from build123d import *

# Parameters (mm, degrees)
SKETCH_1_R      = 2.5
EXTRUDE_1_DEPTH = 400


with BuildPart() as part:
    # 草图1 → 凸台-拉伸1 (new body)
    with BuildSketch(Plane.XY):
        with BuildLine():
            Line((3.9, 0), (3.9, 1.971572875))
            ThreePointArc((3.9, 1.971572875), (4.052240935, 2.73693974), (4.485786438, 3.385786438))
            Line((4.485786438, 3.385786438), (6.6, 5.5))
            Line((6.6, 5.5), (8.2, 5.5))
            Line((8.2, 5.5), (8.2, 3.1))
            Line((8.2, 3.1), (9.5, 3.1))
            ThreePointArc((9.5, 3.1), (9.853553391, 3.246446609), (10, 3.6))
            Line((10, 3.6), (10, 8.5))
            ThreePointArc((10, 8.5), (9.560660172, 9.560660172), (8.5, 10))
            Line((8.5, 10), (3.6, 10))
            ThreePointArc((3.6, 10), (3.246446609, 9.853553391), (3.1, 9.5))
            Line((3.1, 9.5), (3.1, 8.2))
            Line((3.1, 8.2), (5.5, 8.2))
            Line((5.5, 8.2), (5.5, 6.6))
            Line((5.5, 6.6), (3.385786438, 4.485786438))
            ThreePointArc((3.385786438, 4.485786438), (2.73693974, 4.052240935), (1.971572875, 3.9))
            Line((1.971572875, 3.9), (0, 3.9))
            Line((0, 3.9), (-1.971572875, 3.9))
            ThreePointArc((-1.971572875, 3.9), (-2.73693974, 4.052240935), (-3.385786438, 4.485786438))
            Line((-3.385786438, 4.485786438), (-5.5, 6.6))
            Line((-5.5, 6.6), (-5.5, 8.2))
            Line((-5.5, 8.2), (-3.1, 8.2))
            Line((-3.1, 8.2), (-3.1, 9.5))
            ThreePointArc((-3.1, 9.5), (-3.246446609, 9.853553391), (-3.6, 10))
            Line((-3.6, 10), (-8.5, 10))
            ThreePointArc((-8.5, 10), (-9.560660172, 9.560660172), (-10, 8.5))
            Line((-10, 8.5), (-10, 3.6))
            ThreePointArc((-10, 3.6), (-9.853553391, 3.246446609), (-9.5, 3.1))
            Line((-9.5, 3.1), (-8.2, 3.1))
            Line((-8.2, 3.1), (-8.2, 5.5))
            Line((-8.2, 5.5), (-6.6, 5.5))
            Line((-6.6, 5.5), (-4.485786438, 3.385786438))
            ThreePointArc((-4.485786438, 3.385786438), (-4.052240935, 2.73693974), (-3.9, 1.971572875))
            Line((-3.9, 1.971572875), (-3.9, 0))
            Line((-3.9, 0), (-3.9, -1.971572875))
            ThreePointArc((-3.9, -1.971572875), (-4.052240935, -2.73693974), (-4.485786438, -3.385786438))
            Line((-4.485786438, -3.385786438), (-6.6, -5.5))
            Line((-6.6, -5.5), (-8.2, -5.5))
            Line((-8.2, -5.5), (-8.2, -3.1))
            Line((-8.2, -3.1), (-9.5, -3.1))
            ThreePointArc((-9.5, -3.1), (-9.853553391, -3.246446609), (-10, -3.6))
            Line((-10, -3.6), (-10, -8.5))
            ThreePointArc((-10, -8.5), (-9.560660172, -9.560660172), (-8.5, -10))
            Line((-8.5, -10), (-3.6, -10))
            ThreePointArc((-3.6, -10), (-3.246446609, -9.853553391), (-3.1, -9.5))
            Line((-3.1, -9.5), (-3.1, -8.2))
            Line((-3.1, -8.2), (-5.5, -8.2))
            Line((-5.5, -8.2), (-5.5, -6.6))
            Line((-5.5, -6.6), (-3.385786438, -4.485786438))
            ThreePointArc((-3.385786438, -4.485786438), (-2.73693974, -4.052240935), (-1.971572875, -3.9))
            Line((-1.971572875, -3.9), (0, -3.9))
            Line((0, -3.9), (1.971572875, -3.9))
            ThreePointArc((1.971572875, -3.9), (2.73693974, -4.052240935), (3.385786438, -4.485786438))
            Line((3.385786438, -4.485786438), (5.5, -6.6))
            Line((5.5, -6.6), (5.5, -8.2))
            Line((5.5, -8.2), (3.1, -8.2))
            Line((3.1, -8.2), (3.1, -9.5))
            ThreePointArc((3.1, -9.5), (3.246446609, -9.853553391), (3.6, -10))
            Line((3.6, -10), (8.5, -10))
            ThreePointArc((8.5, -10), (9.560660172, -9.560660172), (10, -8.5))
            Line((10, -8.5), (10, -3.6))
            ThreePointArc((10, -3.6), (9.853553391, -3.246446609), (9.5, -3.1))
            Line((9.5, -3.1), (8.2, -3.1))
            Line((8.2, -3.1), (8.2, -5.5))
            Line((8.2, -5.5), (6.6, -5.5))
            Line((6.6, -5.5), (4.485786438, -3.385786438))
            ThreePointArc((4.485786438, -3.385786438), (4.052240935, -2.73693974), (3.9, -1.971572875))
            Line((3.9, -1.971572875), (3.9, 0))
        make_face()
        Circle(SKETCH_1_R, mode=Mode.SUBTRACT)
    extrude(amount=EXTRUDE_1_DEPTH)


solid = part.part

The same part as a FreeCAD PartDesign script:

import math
import FreeCAD as App
import Part
import Sketcher

V = App.Vector

doc = App.newDocument("Part")
body = doc.addObject("PartDesign::Body", "Body")

sketch1 = doc.addObject("Sketcher::SketchObject", "Sketch")
body.addObject(sketch1)
sketch1.AttachmentSupport = (doc.XY_Plane, [""])
sketch1.MapMode = "FlatFace"
sketch1.addGeometry([
    Part.ArcOfCircle(Part.Circle(V(5.9, 1.971573, 0), V(0, 0, 1), 2), math.radians(135), math.radians(180)),
    Part.LineSegment(V(4.485786, 3.385786, 0), V(6.6, 5.5, 0)),
    Part.LineSegment(V(6.6, 5.5, 0), V(8.2, 5.5, 0)),
    Part.LineSegment(V(8.2, 5.5, 0), V(8.2, 3.1, 0)),
    Part.LineSegment(V(8.2, 3.1, 0), V(9.5, 3.1, 0)),
    Part.ArcOfCircle(Part.Circle(V(9.5, 3.6, 0), V(0, 0, 1), 0.5), math.radians(-90), math.radians(0)),
    Part.LineSegment(V(10, 3.6, 0), V(10, 8.5, 0)),
    Part.ArcOfCircle(Part.Circle(V(8.5, 8.5, 0), V(0, 0, 1), 1.5), math.radians(0), math.radians(90)),
    Part.LineSegment(V(8.5, 10, 0), V(3.6, 10, 0)),
    Part.ArcOfCircle(Part.Circle(V(3.6, 9.5, 0), V(0, 0, 1), 0.5), math.radians(90), math.radians(180)),
    Part.LineSegment(V(3.1, 9.5, 0), V(3.1, 8.2, 0)),
    Part.LineSegment(V(3.1, 8.2, 0), V(5.5, 8.2, 0)),
    Part.LineSegment(V(5.5, 8.2, 0), V(5.5, 6.6, 0)),
    Part.LineSegment(V(5.5, 6.6, 0), V(3.385786, 4.485786, 0)),
    Part.ArcOfCircle(Part.Circle(V(1.971573, 5.9, 0), V(0, 0, 1), 2), math.radians(-90), math.radians(-45)),
    Part.LineSegment(V(1.971573, 3.9, 0), V(-1.971573, 3.9, 0)),
    Part.ArcOfCircle(Part.Circle(V(-1.971573, 5.9, 0), V(0, 0, 1), 2), math.radians(-135), math.radians(-90)),
    Part.LineSegment(V(-3.385786, 4.485786, 0), V(-5.5, 6.6, 0)),
    Part.LineSegment(V(-5.5, 6.6, 0), V(-5.5, 8.2, 0)),
    Part.LineSegment(V(-5.5, 8.2, 0), V(-3.1, 8.2, 0)),
    Part.LineSegment(V(-3.1, 8.2, 0), V(-3.1, 9.5, 0)),
    Part.ArcOfCircle(Part.Circle(V(-3.6, 9.5, 0), V(0, 0, 1), 0.5), math.radians(0), math.radians(90)),
    Part.LineSegment(V(-3.6, 10, 0), V(-8.5, 10, 0)),
    Part.ArcOfCircle(Part.Circle(V(-8.5, 8.5, 0), V(0, 0, 1), 1.5), math.radians(90), math.radians(180)),
    Part.LineSegment(V(-10, 8.5, 0), V(-10, 3.6, 0)),
    Part.ArcOfCircle(Part.Circle(V(-9.5, 3.6, 0), V(0, 0, 1), 0.5), math.radians(180), math.radians(270)),
    Part.LineSegment(V(-9.5, 3.1, 0), V(-8.2, 3.1, 0)),
    Part.LineSegment(V(-8.2, 3.1, 0), V(-8.2, 5.5, 0)),
    Part.LineSegment(V(-8.2, 5.5, 0), V(-6.6, 5.5, 0)),
    Part.LineSegment(V(-6.6, 5.5, 0), V(-4.485786, 3.385786, 0)),
    Part.ArcOfCircle(Part.Circle(V(-5.9, 1.971573, 0), V(0, 0, 1), 2), math.radians(0), math.radians(45)),
    Part.LineSegment(V(-3.9, 1.971573, 0), V(-3.9, -1.971573, 0)),
    Part.ArcOfCircle(Part.Circle(V(-5.9, -1.971573, 0), V(0, 0, 1), 2), math.radians(-45), math.radians(0)),
    Part.LineSegment(V(-4.485786, -3.385786, 0), V(-6.6, -5.5, 0)),
    Part.LineSegment(V(-6.6, -5.5, 0), V(-8.2, -5.5, 0)),
    Part.LineSegment(V(-8.2, -5.5, 0), V(-8.2, -3.1, 0)),
    Part.LineSegment(V(-8.2, -3.1, 0), V(-9.5, -3.1, 0)),
    Part.ArcOfCircle(Part.Circle(V(-9.5, -3.6, 0), V(0, 0, 1), 0.5), math.radians(90), math.radians(180)),
    Part.LineSegment(V(-10, -3.6, 0), V(-10, -8.5, 0)),
    Part.ArcOfCircle(Part.Circle(V(-8.5, -8.5, 0), V(0, 0, 1), 1.5), math.radians(180), math.radians(270)),
    Part.LineSegment(V(-8.5, -10, 0), V(-3.6, -10, 0)),
    Part.ArcOfCircle(Part.Circle(V(-3.6, -9.5, 0), V(0, 0, 1), 0.5), math.radians(-90), math.radians(0)),
    Part.LineSegment(V(-3.1, -9.5, 0), V(-3.1, -8.2, 0)),
    Part.LineSegment(V(-3.1, -8.2, 0), V(-5.5, -8.2, 0)),
    Part.LineSegment(V(-5.5, -8.2, 0), V(-5.5, -6.6, 0)),
    Part.LineSegment(V(-5.5, -6.6, 0), V(-3.385786, -4.485786, 0)),
    Part.ArcOfCircle(Part.Circle(V(-1.971573, -5.9, 0), V(0, 0, 1), 2), math.radians(90), math.radians(135)),
    Part.LineSegment(V(-1.971573, -3.9, 0), V(1.971573, -3.9, 0)),
    Part.ArcOfCircle(Part.Circle(V(1.971573, -5.9, 0), V(0, 0, 1), 2), math.radians(45), math.radians(90)),
    Part.LineSegment(V(3.385786, -4.485786, 0), V(5.5, -6.6, 0)),
    Part.LineSegment(V(5.5, -6.6, 0), V(5.5, -8.2, 0)),
    Part.LineSegment(V(5.5, -8.2, 0), V(3.1, -8.2, 0)),
    Part.LineSegment(V(3.1, -8.2, 0), V(3.1, -9.5, 0)),
    Part.ArcOfCircle(Part.Circle(V(3.6, -9.5, 0), V(0, 0, 1), 0.5), math.radians(180), math.radians(270)),
    Part.LineSegment(V(3.6, -10, 0), V(8.5, -10, 0)),
    Part.ArcOfCircle(Part.Circle(V(8.5, -8.5, 0), V(0, 0, 1), 1.5), math.radians(-90), math.radians(0)),
    Part.LineSegment(V(10, -8.5, 0), V(10, -3.6, 0)),
    Part.ArcOfCircle(Part.Circle(V(9.5, -3.6, 0), V(0, 0, 1), 0.5), math.radians(0), math.radians(90)),
    Part.LineSegment(V(9.5, -3.1, 0), V(8.2, -3.1, 0)),
    Part.LineSegment(V(8.2, -3.1, 0), V(8.2, -5.5, 0)),
    Part.LineSegment(V(8.2, -5.5, 0), V(6.6, -5.5, 0)),
    Part.LineSegment(V(6.6, -5.5, 0), V(4.485786, -3.385786, 0)),
    Part.ArcOfCircle(Part.Circle(V(5.9, -1.971573, 0), V(0, 0, 1), 2), math.radians(180), math.radians(225)),
    Part.LineSegment(V(3.9, -1.971573, 0), V(3.9, 1.971573, 0)),
    Part.Circle(V(0, 0, 0), V(0, 0, 1), 2.5),
], False)
sketch1.addConstraint([
    Sketcher.Constraint("Tangent", 0, 1, 1, 1),
    Sketcher.Constraint("Coincident", 1, 2, 2, 1),
    Sketcher.Constraint("Coincident", 2, 2, 3, 1),
    Sketcher.Constraint("Coincident", 3, 2, 4, 1),
    Sketcher.Constraint("Tangent", 4, 2, 5, 1),
    Sketcher.Constraint("Tangent", 5, 2, 6, 1),
    Sketcher.Constraint("Tangent", 6, 2, 7, 1),
    Sketcher.Constraint("Tangent", 7, 2, 8, 1),
    Sketcher.Constraint("Tangent", 8, 2, 9, 1),
    Sketcher.Constraint("Tangent", 9, 2, 10, 1),
    Sketcher.Constraint("Coincident", 10, 2, 11, 1),
    Sketcher.Constraint("Coincident", 11, 2, 12, 1),
    Sketcher.Constraint("Coincident", 12, 2, 13, 1),
    Sketcher.Constraint("Tangent", 13, 2, 14, 2),
    Sketcher.Constraint("Tangent", 14, 1, 15, 1),
    Sketcher.Constraint("Tangent", 15, 2, 16, 2),
    Sketcher.Constraint("Tangent", 16, 1, 17, 1),
    Sketcher.Constraint("Coincident", 17, 2, 18, 1),
    Sketcher.Constraint("Coincident", 18, 2, 19, 1),
    Sketcher.Constraint("Coincident", 19, 2, 20, 1),
    Sketcher.Constraint("Tangent", 20, 2, 21, 1),
    Sketcher.Constraint("Tangent", 21, 2, 22, 1),
    Sketcher.Constraint("Tangent", 22, 2, 23, 1),
    Sketcher.Constraint("Tangent", 23, 2, 24, 1),
    Sketcher.Constraint("Tangent", 24, 2, 25, 1),
    Sketcher.Constraint("Tangent", 25, 2, 26, 1),
    Sketcher.Constraint("Coincident", 26, 2, 27, 1),
    Sketcher.Constraint("Coincident", 27, 2, 28, 1),
    Sketcher.Constraint("Coincident", 28, 2, 29, 1),
    Sketcher.Constraint("Tangent", 29, 2, 30, 2),
    Sketcher.Constraint("Tangent", 30, 1, 31, 1),
    Sketcher.Constraint("Tangent", 31, 2, 32, 2),
    Sketcher.Constraint("Tangent", 32, 1, 33, 1),
    Sketcher.Constraint("Coincident", 33, 2, 34, 1),
    Sketcher.Constraint("Coincident", 34, 2, 35, 1),
    Sketcher.Constraint("Coincident", 35, 2, 36, 1),
    Sketcher.Constraint("Tangent", 36, 2, 37, 1),
    Sketcher.Constraint("Tangent", 37, 2, 38, 1),
    Sketcher.Constraint("Tangent", 38, 2, 39, 1),
    Sketcher.Constraint("Tangent", 39, 2, 40, 1),
    Sketcher.Constraint("Tangent", 40, 2, 41, 1),
    Sketcher.Constraint("Tangent", 41, 2, 42, 1),
    Sketcher.Constraint("Coincident", 42, 2, 43, 1),
    Sketcher.Constraint("Coincident", 43, 2, 44, 1),
    Sketcher.Constraint("Coincident", 44, 2, 45, 1),
    Sketcher.Constraint("Tangent", 45, 2, 46, 2),
    Sketcher.Constraint("Tangent", 46, 1, 47, 1),
    Sketcher.Constraint("Tangent", 47, 2, 48, 2),
    Sketcher.Constraint("Tangent", 48, 1, 49, 1),
    Sketcher.Constraint("Coincident", 49, 2, 50, 1),
    Sketcher.Constraint("Coincident", 50, 2, 51, 1),
    Sketcher.Constraint("Coincident", 51, 2, 52, 1),
    Sketcher.Constraint("Tangent", 52, 2, 53, 1),
    Sketcher.Constraint("Tangent", 53, 2, 54, 1),
    Sketcher.Constraint("Tangent", 54, 2, 55, 1),
    Sketcher.Constraint("Tangent", 55, 2, 56, 1),
    Sketcher.Constraint("Tangent", 56, 2, 57, 1),
    Sketcher.Constraint("Tangent", 57, 2, 58, 1),
    Sketcher.Constraint("Coincident", 58, 2, 59, 1),
    Sketcher.Constraint("Coincident", 59, 2, 60, 1),
    Sketcher.Constraint("Coincident", 60, 2, 61, 1),
    Sketcher.Constraint("Tangent", 61, 2, 62, 2),
    Sketcher.Constraint("Tangent", 62, 1, 63, 1),
    Sketcher.Constraint("Tangent", 63, 2, 0, 2),
    Sketcher.Constraint("Horizontal", 2),
    Sketcher.Constraint("Vertical", 3),
    Sketcher.Constraint("Horizontal", 4),
    Sketcher.Constraint("Vertical", 6),
    Sketcher.Constraint("Horizontal", 8),
    Sketcher.Constraint("Vertical", 10),
    Sketcher.Constraint("Horizontal", 11),
    Sketcher.Constraint("Vertical", 12),
    Sketcher.Constraint("Horizontal", 15),
    Sketcher.Constraint("Vertical", 18),
    Sketcher.Constraint("Horizontal", 19),
    Sketcher.Constraint("Vertical", 20),
    Sketcher.Constraint("Horizontal", 22),
    Sketcher.Constraint("Vertical", 24),
    Sketcher.Constraint("Horizontal", 26),
    Sketcher.Constraint("Vertical", 27),
    Sketcher.Constraint("Horizontal", 28),
    Sketcher.Constraint("Vertical", 31),
    Sketcher.Constraint("Horizontal", 34),
    Sketcher.Constraint("Vertical", 35),
    Sketcher.Constraint("Horizontal", 36),
    Sketcher.Constraint("Vertical", 38),
    Sketcher.Constraint("Horizontal", 40),
    Sketcher.Constraint("Vertical", 42),
    Sketcher.Constraint("Horizontal", 43),
    Sketcher.Constraint("Vertical", 44),
    Sketcher.Constraint("Horizontal", 47),
    Sketcher.Constraint("Vertical", 50),
    Sketcher.Constraint("Horizontal", 51),
    Sketcher.Constraint("Vertical", 52),
    Sketcher.Constraint("Horizontal", 54),
    Sketcher.Constraint("Vertical", 56),
    Sketcher.Constraint("Horizontal", 58),
    Sketcher.Constraint("Vertical", 59),
    Sketcher.Constraint("Horizontal", 60),
    Sketcher.Constraint("Vertical", 63),
    Sketcher.Constraint("Coincident", 64, 3, -1, 1),
    Sketcher.Constraint("Equal", 5, 9),
    Sketcher.Constraint("Equal", 0, 14),
    Sketcher.Constraint("Equal", 14, 16),
    Sketcher.Constraint("Equal", 9, 21),
    Sketcher.Constraint("Equal", 7, 23),
    Sketcher.Constraint("Equal", 21, 25),
    Sketcher.Constraint("Equal", 16, 30),
    Sketcher.Constraint("Equal", 30, 32),
    Sketcher.Constraint("Equal", 25, 37),
    Sketcher.Constraint("Equal", 23, 39),
    Sketcher.Constraint("Equal", 37, 41),
    Sketcher.Constraint("Equal", 32, 46),
    Sketcher.Constraint("Equal", 46, 48),
    Sketcher.Constraint("Equal", 41, 53),
    Sketcher.Constraint("Equal", 39, 55),
    Sketcher.Constraint("Equal", 53, 57),
    Sketcher.Constraint("Equal", 48, 62),
    Sketcher.Constraint("Symmetric", 0, 3, 32, 3, -1, 1),
    Sketcher.Constraint("Symmetric", 5, 3, 37, 3, -1, 1),
    Sketcher.Constraint("Symmetric", 9, 3, 41, 3, -1, 1),
    Sketcher.Constraint("Symmetric", 14, 3, 46, 3, -1, 1),
    Sketcher.Constraint("Symmetric", 21, 3, 53, 3, -1, 1),
    Sketcher.Constraint("Symmetric", 25, 3, 57, 3, -1, 1),
    Sketcher.Constraint("Symmetric", 1, 2, 33, 2, -1, 1),
    Sketcher.Constraint("Symmetric", 11, 2, 43, 2, -1, 1),
    Sketcher.Constraint("Symmetric", 16, 1, 48, 1, -1, 1),
    Sketcher.Constraint("Symmetric", 18, 2, 50, 2, -1, 1),
    Sketcher.Constraint("Symmetric", 27, 2, 59, 2, -1, 1),
    Sketcher.Constraint("Symmetric", 29, 2, 61, 2, -1, 1),
    Sketcher.Constraint("Symmetric", 9, 3, 21, 3, -2),
    Sketcher.Constraint("Symmetric", 5, 3, 25, 3, -2),
    Sketcher.Constraint("Symmetric", 13, 2, 16, 1, -2),
    Sketcher.Constraint("Symmetric", 11, 2, 18, 2, -2),
    Sketcher.Constraint("Symmetric", 2, 2, 27, 2, -2),
    Sketcher.Constraint("Symmetric", 0, 1, 29, 2, -2),
    Sketcher.Constraint("Parallel", 1, 13),
    Sketcher.Constraint("Perpendicular", 13, 17),
    Sketcher.Constraint("Parallel", 33, 45),
    Sketcher.Constraint("Vertical", 27, 2, 34, 2),
    Sketcher.Constraint("Equal", 51, 3),
    Sketcher.Constraint("Equal", 54, 6),
    Sketcher.Constraint("Equal", 58, 10),
    Sketcher.Constraint("Equal", 60, 12),
    Sketcher.Constraint("Equal", 47, 31),
    Sketcher.Constraint("Equal", 1, 13),
    Sketcher.Constraint("Diameter", 64, 5.0),
    Sketcher.Constraint("Radius", 0, 2.0),
    Sketcher.Constraint("Radius", 5, 0.5),
    Sketcher.Constraint("Radius", 7, 1.5),
    Sketcher.Constraint("DistanceX", 2, 1, 2, 2, 1.6),
    Sketcher.Constraint("DistanceX", 4, 1, 4, 2, 1.3),
    Sketcher.Constraint("DistanceX", 8, 2, 8, 1, 4.9),
    Sketcher.Constraint("DistanceX", 11, 1, 11, 2, 2.4),
    Sketcher.Constraint("DistanceX", -1, 1, 5, 2, 10.0),
    Sketcher.Constraint("DistanceX", -1, 1, 0, 3, 5.9),
])
pad1 = doc.addObject("PartDesign::Pad", "Pad")
body.addObject(pad1)
pad1.Profile = sketch1
pad1.Length = 400

doc.recompute()
